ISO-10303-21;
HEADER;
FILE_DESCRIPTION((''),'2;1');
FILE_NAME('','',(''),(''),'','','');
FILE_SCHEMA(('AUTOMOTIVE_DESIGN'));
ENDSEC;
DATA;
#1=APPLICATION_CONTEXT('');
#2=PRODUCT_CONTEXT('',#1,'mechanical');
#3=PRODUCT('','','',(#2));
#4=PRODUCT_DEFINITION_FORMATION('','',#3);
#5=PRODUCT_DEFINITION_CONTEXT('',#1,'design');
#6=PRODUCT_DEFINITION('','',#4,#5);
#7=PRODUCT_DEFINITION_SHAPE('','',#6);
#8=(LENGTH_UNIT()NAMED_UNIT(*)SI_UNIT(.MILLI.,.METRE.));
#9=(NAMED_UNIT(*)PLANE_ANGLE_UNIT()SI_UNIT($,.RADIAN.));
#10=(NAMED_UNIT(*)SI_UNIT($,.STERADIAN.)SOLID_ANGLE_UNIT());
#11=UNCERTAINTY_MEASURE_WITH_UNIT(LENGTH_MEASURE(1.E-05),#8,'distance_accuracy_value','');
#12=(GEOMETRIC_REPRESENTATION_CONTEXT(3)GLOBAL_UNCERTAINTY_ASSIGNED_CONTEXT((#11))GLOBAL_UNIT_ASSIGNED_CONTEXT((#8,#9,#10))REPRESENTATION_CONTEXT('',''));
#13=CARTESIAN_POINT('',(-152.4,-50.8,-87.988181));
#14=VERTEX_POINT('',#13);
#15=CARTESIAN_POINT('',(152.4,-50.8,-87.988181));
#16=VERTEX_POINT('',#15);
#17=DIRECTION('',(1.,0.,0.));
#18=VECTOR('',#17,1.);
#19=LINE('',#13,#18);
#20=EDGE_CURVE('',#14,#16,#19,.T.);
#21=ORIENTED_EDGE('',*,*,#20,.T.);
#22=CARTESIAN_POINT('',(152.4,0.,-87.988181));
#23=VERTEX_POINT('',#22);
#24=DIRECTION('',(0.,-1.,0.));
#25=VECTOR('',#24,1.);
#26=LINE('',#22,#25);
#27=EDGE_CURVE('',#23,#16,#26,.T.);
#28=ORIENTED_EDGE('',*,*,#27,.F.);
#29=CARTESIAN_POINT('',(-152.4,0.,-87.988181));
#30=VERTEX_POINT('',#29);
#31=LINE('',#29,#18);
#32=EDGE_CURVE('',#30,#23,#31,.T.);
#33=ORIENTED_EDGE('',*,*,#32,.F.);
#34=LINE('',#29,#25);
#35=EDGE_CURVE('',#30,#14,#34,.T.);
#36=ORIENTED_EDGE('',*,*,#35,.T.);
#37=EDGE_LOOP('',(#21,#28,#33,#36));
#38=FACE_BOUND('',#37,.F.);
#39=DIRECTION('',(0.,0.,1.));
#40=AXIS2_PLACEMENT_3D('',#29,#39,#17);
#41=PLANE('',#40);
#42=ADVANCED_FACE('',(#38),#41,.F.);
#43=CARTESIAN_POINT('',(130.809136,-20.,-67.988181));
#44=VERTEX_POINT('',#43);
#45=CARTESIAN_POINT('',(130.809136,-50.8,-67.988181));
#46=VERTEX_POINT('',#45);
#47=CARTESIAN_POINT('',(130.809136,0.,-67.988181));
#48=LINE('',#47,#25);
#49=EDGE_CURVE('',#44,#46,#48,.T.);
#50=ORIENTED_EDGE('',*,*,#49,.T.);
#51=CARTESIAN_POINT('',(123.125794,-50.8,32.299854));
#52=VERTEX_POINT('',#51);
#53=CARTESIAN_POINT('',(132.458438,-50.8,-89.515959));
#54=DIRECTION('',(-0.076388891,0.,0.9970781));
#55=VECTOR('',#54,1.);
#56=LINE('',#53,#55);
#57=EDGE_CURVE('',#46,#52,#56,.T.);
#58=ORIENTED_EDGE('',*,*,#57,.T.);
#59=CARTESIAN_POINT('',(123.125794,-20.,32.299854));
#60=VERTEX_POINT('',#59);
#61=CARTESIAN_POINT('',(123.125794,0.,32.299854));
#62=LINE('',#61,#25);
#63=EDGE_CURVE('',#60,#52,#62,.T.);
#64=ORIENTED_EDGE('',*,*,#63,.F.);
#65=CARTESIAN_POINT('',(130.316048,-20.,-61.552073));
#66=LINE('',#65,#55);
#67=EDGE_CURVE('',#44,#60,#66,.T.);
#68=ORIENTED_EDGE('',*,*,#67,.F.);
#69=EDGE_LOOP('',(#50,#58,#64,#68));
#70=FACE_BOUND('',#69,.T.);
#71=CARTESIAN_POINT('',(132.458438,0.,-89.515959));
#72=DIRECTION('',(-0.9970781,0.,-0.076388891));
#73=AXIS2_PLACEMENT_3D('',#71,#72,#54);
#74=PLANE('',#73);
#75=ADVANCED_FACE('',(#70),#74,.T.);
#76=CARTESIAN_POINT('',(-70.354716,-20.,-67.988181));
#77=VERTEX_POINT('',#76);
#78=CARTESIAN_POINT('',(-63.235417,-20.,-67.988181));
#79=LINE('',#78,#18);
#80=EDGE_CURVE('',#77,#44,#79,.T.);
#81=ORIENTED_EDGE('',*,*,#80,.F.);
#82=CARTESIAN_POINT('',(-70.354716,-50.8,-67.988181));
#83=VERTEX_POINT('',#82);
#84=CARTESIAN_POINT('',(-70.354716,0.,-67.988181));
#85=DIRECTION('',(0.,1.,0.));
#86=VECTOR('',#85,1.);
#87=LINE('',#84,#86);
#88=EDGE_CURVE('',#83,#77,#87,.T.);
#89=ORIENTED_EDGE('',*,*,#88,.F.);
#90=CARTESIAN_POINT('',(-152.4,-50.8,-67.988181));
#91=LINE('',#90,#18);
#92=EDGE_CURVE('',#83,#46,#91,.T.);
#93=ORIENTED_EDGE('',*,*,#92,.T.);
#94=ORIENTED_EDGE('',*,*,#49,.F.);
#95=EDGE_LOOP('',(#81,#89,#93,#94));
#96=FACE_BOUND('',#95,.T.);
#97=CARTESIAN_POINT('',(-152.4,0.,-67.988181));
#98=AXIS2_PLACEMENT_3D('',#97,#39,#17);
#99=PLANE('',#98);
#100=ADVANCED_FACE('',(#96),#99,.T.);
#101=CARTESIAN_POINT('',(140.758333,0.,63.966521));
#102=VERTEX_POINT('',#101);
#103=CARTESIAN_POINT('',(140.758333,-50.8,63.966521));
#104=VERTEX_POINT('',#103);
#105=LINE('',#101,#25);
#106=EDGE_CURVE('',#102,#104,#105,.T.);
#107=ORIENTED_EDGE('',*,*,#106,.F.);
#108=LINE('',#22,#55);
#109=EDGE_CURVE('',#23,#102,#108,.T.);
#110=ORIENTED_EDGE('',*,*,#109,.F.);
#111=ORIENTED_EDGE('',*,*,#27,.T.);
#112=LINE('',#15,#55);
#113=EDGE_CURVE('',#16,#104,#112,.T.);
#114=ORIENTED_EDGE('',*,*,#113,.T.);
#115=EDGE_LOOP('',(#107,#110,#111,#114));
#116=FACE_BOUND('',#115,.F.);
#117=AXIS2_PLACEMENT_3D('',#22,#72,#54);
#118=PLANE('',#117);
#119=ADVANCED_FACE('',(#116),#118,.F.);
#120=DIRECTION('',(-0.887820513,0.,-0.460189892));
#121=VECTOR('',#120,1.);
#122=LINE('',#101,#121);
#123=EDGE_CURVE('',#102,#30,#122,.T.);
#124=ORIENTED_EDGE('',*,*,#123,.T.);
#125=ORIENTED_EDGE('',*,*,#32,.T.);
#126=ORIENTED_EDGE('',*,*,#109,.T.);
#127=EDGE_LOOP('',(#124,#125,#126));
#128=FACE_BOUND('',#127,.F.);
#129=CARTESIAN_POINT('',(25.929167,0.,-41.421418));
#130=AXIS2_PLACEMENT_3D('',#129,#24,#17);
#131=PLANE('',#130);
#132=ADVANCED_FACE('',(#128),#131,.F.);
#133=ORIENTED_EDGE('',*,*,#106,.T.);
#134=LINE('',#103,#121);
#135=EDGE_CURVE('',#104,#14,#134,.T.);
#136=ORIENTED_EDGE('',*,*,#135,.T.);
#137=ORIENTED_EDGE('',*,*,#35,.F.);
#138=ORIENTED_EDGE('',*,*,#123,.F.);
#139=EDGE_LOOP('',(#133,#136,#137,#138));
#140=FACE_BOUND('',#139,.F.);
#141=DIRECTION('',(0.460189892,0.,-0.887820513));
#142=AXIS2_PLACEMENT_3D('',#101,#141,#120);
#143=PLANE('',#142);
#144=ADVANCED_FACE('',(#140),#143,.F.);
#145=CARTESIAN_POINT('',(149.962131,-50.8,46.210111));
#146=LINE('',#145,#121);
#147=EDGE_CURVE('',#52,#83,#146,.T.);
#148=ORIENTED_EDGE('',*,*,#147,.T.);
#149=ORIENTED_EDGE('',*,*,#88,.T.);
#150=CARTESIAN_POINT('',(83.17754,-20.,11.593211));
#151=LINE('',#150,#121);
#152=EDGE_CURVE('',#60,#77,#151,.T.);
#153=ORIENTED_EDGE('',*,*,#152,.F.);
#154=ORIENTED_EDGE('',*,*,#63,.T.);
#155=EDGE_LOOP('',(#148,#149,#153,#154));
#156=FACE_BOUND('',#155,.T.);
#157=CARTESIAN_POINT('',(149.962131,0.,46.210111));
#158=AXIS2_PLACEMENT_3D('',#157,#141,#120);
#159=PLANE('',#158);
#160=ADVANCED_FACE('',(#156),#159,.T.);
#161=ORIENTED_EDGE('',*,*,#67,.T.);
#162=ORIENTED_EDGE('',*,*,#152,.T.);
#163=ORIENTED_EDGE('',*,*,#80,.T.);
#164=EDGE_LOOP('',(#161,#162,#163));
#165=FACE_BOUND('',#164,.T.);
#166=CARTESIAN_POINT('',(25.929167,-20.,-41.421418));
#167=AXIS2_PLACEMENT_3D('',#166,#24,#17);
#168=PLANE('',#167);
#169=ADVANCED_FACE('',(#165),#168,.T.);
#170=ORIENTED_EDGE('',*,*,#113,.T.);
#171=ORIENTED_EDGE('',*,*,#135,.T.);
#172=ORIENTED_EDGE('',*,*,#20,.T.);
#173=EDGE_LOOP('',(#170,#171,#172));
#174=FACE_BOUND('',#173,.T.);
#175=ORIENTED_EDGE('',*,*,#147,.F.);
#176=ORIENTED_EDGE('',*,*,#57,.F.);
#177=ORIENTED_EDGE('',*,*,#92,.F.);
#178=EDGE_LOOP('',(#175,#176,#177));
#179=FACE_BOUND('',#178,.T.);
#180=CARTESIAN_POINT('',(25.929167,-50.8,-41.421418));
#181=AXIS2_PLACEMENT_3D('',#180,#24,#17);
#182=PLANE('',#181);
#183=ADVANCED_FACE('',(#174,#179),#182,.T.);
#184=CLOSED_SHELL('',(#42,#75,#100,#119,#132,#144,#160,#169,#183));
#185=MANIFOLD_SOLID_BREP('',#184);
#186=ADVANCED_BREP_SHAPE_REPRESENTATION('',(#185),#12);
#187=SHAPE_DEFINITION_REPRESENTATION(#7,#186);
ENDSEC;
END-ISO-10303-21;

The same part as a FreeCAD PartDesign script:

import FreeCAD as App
import Part
import Sketcher

V = App.Vector
Q = App.Units.Quantity


def faces_at(feature, points):
    """Names of the faces that lie closest to the given points."""
    faces = feature.Shape.Faces
    near = lambda p: min(range(len(faces)), key=lambda i: faces[i].distToShape(Part.Vertex(*p))[0])
    return sorted({f"Face{near(p) + 1}" for p in points})

doc = App.newDocument("Part")
body = doc.addObject("PartDesign::Body", "Body")

sketch1 = doc.addObject("Sketcher::SketchObject", "Sketch")
body.addObject(sketch1)
sketch1.AttachmentSupport = (doc.XZ_Plane, [""])
sketch1.MapMode = "FlatFace"
sketch1.addGeometry(Part.LineSegment(V(-152, -88, 0), V(152, -88, 0)), False)
sketch1.addGeometry(Part.LineSegment(V(152, -88, 0), V(141, 64, 0)), False)
sketch1.addGeometry(Part.LineSegment(V(141, 64, 0), V(-152, -88, 0)), False)
sketch1.addConstraint(Sketcher.Constraint("Coincident", 0, 2, 1, 1))
sketch1.addConstraint(Sketcher.Constraint("Coincident", 1, 2, 2, 1))
sketch1.addConstraint(Sketcher.Constraint("Coincident", 2, 2, 0, 1))
sketch1.addConstraint(Sketcher.Constraint("Horizontal", 0))
sketch1.addConstraint(Sketcher.Constraint("DistanceX", 0, 1, 0, 2, Q("12 in")))
sketch1.addConstraint(Sketcher.Constraint("Distance", 1, Q("6 in")))
sketch1.addConstraint(Sketcher.Constraint("Distance", 2, Q("13 in")))
sketch1.addConstraint(Sketcher.Constraint("DistanceX", -1, 1, 0, 2, Q("6 in")))
sketch1.addConstraint(Sketcher.Constraint("DistanceY", 0, 2, -1, 1, 87.988181))
pad1 = doc.addObject("PartDesign::Pad", "Pad")
body.addObject(pad1)
pad1.Profile = sketch1
pad1.Length = Q("2 in")
doc.recompute()

thickness = doc.addObject("PartDesign::Thickness", "Thickness")
body.addObject(thickness)
thickness.Base = (pad1, faces_at(pad1, [(0, -50.8, -12.011)]))
thickness.Value = 20
thickness.Reversed = True
thickness.Join = "Arc"

doc.recompute()
